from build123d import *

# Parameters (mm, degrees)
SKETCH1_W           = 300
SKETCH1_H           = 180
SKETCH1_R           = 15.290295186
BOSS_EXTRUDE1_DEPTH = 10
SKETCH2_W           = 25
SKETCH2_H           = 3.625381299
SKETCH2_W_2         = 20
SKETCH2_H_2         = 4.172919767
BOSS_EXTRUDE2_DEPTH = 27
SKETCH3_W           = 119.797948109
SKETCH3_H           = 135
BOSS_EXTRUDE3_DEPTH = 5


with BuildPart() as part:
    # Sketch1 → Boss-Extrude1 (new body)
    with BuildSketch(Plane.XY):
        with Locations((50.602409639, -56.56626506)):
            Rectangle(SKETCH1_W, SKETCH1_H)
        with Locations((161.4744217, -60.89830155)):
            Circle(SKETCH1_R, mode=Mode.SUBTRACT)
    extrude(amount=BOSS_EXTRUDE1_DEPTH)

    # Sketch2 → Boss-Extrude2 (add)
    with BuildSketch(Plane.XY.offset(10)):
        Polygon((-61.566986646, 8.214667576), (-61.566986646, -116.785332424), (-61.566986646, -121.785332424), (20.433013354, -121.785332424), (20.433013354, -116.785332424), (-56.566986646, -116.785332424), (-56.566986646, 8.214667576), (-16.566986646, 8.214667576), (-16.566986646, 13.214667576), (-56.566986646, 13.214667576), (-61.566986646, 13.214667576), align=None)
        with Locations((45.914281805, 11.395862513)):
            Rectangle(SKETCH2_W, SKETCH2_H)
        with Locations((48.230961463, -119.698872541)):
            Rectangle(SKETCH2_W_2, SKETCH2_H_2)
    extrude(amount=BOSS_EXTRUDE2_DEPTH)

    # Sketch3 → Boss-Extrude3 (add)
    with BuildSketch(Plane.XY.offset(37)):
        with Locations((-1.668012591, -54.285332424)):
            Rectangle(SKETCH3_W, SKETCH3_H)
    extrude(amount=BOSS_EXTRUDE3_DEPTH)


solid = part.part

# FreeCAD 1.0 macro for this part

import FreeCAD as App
import Part
import Sketcher


def add_polygon(sketch, points):
    """Adds a closed chain of lines whose ends are joined by coincident constraints."""
    first, n = sketch.GeometryCount, len(points)
    for a, b in zip(points, points[1:] + points[:1]):
        sketch.addGeometry(Part.LineSegment(App.Vector(*a, 0), App.Vector(*b, 0)), False)
    for i in range(n):
        sketch.addConstraint(Sketcher.Constraint("Coincident", first + i, 2, first + (i + 1) % n, 1))

doc = App.newDocument("Part")
body = doc.addObject("PartDesign::Body", "Body")

sketch1 = body.newObject("Sketcher::SketchObject", "Sketch")
sketch1.AttachmentSupport = (doc.getObject("XY_Plane"), [""])
sketch1.MapMode = "FlatFace"
add_polygon(sketch1, [(-99, 33), (-99, -147), (201, -147), (201, 33)])
sketch1.addGeometry(Part.Circle(App.Vector(161, -61, 0), App.Vector(0, 0, 1), 15), False)
sketch1.addConstraint([
    Sketcher.Constraint("Vertical", 0),
    Sketcher.Constraint("Horizontal", 1),
    Sketcher.Constraint("Vertical", 2),
    Sketcher.Constraint("Horizontal", 3),
    Sketcher.Constraint("DistanceX", 1, 1, 1, 2, 300.0),
    Sketcher.Constraint("DistanceY", 0, 2, 0, 1, 180.0),
    Sketcher.Constraint("Diameter", 4, 30.58059),
    Sketcher.Constraint("DistanceY", 4, 3, -1, 1, 60.898302),
    Sketcher.Constraint("DistanceX", -1, 1, 4, 3, 161.474422),
    Sketcher.Constraint("DistanceX", 0, 2, -1, 1, 99.39759),
    Sketcher.Constraint("DistanceY", 0, 2, -1, 1, 146.566265),
])
pad1 = body.newObject("PartDesign::Pad", "Pad")
pad1.Profile = sketch1
pad1.Length = 10

sketch2 = body.newObject("Sketcher::SketchObject", "Sketch001")
sketch2.AttachmentSupport = (doc.getObject("XY_Plane"), [""])
sketch2.MapMode = "FlatFace"
sketch2.AttachmentOffset = App.Placement(App.Vector(0, 0, 10), App.Rotation())
add_polygon(sketch2, [(-61.6, -121.8), (20.4, -121.8), (20.4, -116.8), (-56.6, -116.8), (-56.6, 8.2), (-16.6, 8.2), (-16.6, 13.2), (-61.6, 13.2)])
add_polygon(sketch2, [(33.4, 13.2), (33.4, 9.6), (58.4, 9.6), (58.4, 13.2)])
add_polygon(sketch2, [(38.2, -117.6), (38.2, -121.8), (58.2, -121.8), (58.2, -117.6)])
sketch2.addConstraint([
    Sketcher.Constraint("Horizontal", 0),
    Sketcher.Constraint("Vertical", 1),
    Sketcher.Constraint("Horizontal", 2),
    Sketcher.Constraint("Vertical", 3),
    Sketcher.Constraint("Horizontal", 4),
    Sketcher.Constraint("Vertical", 5),
    Sketcher.Constraint("Horizontal", 6),
    Sketcher.Constraint("Vertical", 7),
    Sketcher.Constraint("Vertical", 8),
    Sketcher.Constraint("Horizontal", 9),
    Sketcher.Constraint("Vertical", 10),
    Sketcher.Constraint("Horizontal", 11),
    Sketcher.Constraint("Vertical", 12),
    Sketcher.Constraint("Horizontal", 13),
    Sketcher.Constraint("Vertical", 14),
    Sketcher.Constraint("Horizontal", 15),
    Sketcher.Constraint("Horizontal", 7, 2, 12, 2),
    Sketcher.Constraint("Equal", 1, 5),
    Sketcher.Constraint("DistanceX", 0, 1, 0, 2, 82.0),
    Sketcher.Constraint("DistanceX", 2, 2, 2, 1, 77.0),
    Sketcher.Constraint("DistanceX", 4, 1, 4, 2, 40.0),
    Sketcher.Constraint("DistanceX", 9, 1, 9, 2, 25.0),
    Sketcher.Constraint("DistanceX", 13, 1, 13, 2, 20.0),
    Sketcher.Constraint("DistanceY", 1, 1, 1, 2, 5.0),
    Sketcher.Constraint("DistanceY", 3, 1, 3, 2, 125.0),
    Sketcher.Constraint("DistanceY", 8, 2, 8, 1, 3.625381),
    Sketcher.Constraint("DistanceY", 12, 2, 12, 1, 4.17292),
    Sketcher.Constraint("DistanceX", -1, 1, 8, 2, 33.414282),
    Sketcher.Constraint("DistanceY", -1, 1, 8, 2, 9.583172),
    Sketcher.Constraint("DistanceX", -1, 1, 12, 2, 38.230961),
    Sketcher.Constraint("DistanceX", 4, 2, 8, 2, 49.981268),
    Sketcher.Constraint("DistanceY", 0, 2, -1, 1, 121.785332),
])
pad2 = body.newObject("PartDesign::Pad", "Pad001")
pad2.Profile = sketch2
pad2.Length = 27

sketch3 = body.newObject("Sketcher::SketchObject", "Sketch002")
sketch3.AttachmentSupport = (doc.getObject("XY_Plane"), [""])
sketch3.MapMode = "FlatFace"
sketch3.AttachmentOffset = App.Placement(App.Vector(0, 0, 37), App.Rotation())
add_polygon(sketch3, [(-62, 13), (-62, -122), (58, -122), (58, 13)])
sketch3.addConstraint([
    Sketcher.Constraint("Vertical", 0),
    Sketcher.Constraint("Horizontal", 1),
    Sketcher.Constraint("Vertical", 2),
    Sketcher.Constraint("Horizontal", 3),
    Sketcher.Constraint("DistanceY", 0, 2, 0, 1, 135.0),
    Sketcher.Constraint("DistanceX", 1, 1, 1, 2, 119.797948),
    Sketcher.Constraint("DistanceX", -1, 1, 1, 2, 58.230961),
    Sketcher.Constraint("DistanceY", 0, 2, -1, 1, 121.785332),
])
pad3 = body.newObject("PartDesign::Pad", "Pad002")
pad3.Profile = sketch3
pad3.Length = 5

doc.recompute()
